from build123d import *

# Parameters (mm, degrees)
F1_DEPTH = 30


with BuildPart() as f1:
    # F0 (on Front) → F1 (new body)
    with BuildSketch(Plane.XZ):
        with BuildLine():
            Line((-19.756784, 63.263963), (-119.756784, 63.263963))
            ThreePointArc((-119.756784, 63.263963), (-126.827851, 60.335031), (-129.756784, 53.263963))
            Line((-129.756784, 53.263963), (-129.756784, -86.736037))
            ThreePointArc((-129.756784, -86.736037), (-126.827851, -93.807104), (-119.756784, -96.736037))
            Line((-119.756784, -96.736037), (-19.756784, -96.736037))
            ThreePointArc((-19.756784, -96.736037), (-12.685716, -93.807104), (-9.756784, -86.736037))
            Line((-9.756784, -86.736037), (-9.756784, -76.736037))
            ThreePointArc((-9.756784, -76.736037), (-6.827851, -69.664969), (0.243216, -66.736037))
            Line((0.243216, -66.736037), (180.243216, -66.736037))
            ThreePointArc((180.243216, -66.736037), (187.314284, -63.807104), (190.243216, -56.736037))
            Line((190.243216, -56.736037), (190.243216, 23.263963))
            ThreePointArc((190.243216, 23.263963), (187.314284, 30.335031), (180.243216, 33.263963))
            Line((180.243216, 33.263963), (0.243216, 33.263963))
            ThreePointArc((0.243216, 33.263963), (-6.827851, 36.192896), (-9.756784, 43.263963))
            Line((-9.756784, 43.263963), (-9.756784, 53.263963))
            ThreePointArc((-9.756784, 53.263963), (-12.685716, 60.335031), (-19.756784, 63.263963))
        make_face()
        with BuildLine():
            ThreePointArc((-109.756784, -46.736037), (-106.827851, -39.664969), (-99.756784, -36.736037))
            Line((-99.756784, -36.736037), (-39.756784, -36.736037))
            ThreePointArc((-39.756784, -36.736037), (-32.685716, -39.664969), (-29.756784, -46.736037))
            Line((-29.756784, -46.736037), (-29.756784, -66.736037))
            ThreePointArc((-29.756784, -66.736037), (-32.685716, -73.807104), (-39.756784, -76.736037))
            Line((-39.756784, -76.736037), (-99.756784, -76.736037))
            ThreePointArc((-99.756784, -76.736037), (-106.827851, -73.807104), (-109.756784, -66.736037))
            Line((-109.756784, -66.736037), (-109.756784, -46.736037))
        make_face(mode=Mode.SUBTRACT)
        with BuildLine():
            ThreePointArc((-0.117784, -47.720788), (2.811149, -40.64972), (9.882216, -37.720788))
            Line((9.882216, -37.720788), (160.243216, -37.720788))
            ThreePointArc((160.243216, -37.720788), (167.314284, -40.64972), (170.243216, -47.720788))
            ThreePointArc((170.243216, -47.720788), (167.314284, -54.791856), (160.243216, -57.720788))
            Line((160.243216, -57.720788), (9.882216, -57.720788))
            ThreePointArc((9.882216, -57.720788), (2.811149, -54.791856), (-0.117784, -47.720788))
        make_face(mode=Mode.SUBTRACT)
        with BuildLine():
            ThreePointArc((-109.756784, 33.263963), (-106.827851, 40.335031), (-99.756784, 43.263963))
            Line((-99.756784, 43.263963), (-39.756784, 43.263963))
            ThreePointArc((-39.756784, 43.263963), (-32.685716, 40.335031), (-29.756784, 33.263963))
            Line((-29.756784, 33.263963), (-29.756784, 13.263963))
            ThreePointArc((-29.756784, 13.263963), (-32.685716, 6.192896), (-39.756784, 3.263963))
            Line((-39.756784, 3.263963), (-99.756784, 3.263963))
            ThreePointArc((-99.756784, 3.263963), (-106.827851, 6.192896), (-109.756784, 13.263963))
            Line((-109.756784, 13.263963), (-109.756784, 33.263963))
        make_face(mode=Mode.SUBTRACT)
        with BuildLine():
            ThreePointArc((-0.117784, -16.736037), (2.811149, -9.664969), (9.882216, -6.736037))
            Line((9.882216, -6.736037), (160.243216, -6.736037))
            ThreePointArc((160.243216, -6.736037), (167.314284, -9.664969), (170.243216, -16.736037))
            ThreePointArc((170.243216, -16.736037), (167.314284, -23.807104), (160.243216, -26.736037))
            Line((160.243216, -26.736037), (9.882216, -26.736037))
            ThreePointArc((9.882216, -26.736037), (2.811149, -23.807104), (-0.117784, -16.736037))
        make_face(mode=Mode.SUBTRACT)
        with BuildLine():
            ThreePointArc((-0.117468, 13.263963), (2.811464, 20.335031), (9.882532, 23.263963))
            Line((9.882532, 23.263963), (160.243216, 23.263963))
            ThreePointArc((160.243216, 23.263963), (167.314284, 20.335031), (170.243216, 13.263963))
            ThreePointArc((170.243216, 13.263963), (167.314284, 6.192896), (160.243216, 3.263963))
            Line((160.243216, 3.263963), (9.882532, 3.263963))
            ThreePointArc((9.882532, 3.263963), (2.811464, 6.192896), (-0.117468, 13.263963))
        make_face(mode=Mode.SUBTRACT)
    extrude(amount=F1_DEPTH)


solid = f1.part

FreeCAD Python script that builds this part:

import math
import FreeCAD as App
import Part
import Sketcher

V = App.Vector

doc = App.newDocument("Part")
params = doc.addObject("Spreadsheet::Sheet", "Params")
for row, (alias, value) in enumerate([
    ("sketch1_radius", "10.000001 mm"),
    ("sketch1_width", "100 mm"),
    ("sketch1_width2", "180 mm"),
    ("sketch1_width3", "60 mm"),
    ("sketch1_height", "140 mm"),
    ("pad1_length", "30 mm"),
], start=1):
    params.set(f"A{row}", alias)
    params.set(f"B{row}", "=" + value)
    params.setAlias(f"B{row}", alias)

body = doc.addObject("PartDesign::Body", "Body")

sketch1 = doc.addObject("Sketcher::SketchObject", "Sketch")
body.addObject(sketch1)
sketch1.AttachmentSupport = (doc.XZ_Plane, [""])
sketch1.MapMode = "FlatFace"
sketch1.addGeometry([
    Part.LineSegment(V(-19.756784, 63.263963, 0), V(-119.756784, 63.263963, 0)),
    Part.ArcOfCircle(Part.Circle(V(-119.756783, 53.263962, 0), V(0, 0, 1), 10.000001), math.radians(90.000006), math.radians(179.999994)),
    Part.LineSegment(V(-129.756784, 53.263963, 0), V(-129.756784, -86.736037, 0)),
    Part.ArcOfCircle(Part.Circle(V(-119.756781, -86.736034, 0), V(0, 0, 1), 10.000003), math.radians(-179.999984), math.radians(-90.000016)),
    Part.LineSegment(V(-119.756784, -96.736037, 0), V(-19.756784, -96.736037, 0)),
    Part.ArcOfCircle(Part.Circle(V(-19.756785, -86.736036, 0), V(0, 0, 1), 10.000001), math.radians(-89.999994), math.radians(-0.000006)),
    Part.LineSegment(V(-9.756784, -86.736037, 0), V(-9.756784, -76.736037, 0)),
    Part.ArcOfCircle(Part.Circle(V(0.243217, -76.736038, 0), V(0, 0, 1), 10.000001), math.radians(90.000006), math.radians(179.999994)),
    Part.LineSegment(V(0.243216, -66.736037, 0), V(180.243216, -66.736037, 0)),
    Part.ArcOfCircle(Part.Circle(V(180.243215, -56.736036, 0), V(0, 0, 1), 10.000001), math.radians(-89.999994), math.radians(-0.000006)),
    Part.LineSegment(V(190.243216, -56.736037, 0), V(190.243216, 23.263963, 0)),
    Part.ArcOfCircle(Part.Circle(V(180.243217, 23.263964, 0), V(0, 0, 1), 9.999999), math.radians(-0.000004), math.radians(90.000004)),
    Part.LineSegment(V(180.243216, 33.263963, 0), V(0.243216, 33.263963, 0)),
    Part.ArcOfCircle(Part.Circle(V(0.243219, 43.263966, 0), V(0, 0, 1), 10.000003), math.radians(-179.999984), math.radians(-90.000016)),
    Part.LineSegment(V(-9.756784, 43.263963, 0), V(-9.756784, 53.263963, 0)),
    Part.ArcOfCircle(Part.Circle(V(-19.756783, 53.263964, 0), V(0, 0, 1), 9.999999), math.radians(-0.000004), math.radians(90.000004)),
    Part.LineSegment(V(-109.756784, -66.736037, 0), V(-109.756784, -46.736037, 0)),
    Part.ArcOfCircle(Part.Circle(V(-99.756783, -46.736038, 0), V(0, 0, 1), 10.000001), math.radians(90.000006), math.radians(179.999994)),
    Part.LineSegment(V(-99.756784, -36.736037, 0), V(-39.756784, -36.736037, 0)),
    Part.ArcOfCircle(Part.Circle(V(-39.756783, -46.736036, 0), V(0, 0, 1), 9.999999), math.radians(-0.000004), math.radians(90.000004)),
    Part.LineSegment(V(-29.756784, -46.736037, 0), V(-29.756784, -66.736037, 0)),
    Part.ArcOfCircle(Part.Circle(V(-39.756785, -66.736036, 0), V(0, 0, 1), 10.000001), math.radians(-89.999994), math.radians(-0.000006)),
    Part.LineSegment(V(-39.756784, -76.736037, 0), V(-99.756784, -76.736037, 0)),
    Part.ArcOfCircle(Part.Circle(V(-99.756781, -66.736034, 0), V(0, 0, 1), 10.000003), math.radians(-179.999984), math.radians(-90.000016)),
    Part.ArcOfCircle(Part.Circle(V(9.882217, -47.720787, 0), V(0, 0, 1), 10.000001), math.radians(-179.999994), math.radians(-90.000006)),
    Part.ArcOfCircle(Part.Circle(V(9.882217, -47.720789, 0), V(0, 0, 1), 10.000001), math.radians(90.000006), math.radians(179.999994)),
    Part.LineSegment(V(9.882216, -37.720788, 0), V(160.243216, -37.720788, 0)),
    Part.ArcOfCircle(Part.Circle(V(160.243217, -47.720787, 0), V(0, 0, 1), 9.999999), math.radians(-0.000004), math.radians(90.000004)),
    Part.ArcOfCircle(Part.Circle(V(160.243217, -47.720789, 0), V(0, 0, 1), 9.999999), math.radians(-90.000004), math.radians(0.000004)),
    Part.LineSegment(V(160.243216, -57.720788, 0), V(9.882216, -57.720788, 0)),
    Part.ArcOfCircle(Part.Circle(V(9.882219, -16.736034, 0), V(0, 0, 1), 10.000003), math.radians(-179.999984), math.radians(-90.000016)),
    Part.ArcOfCircle(Part.Circle(V(9.882217, -16.736038, 0), V(0, 0, 1), 10.000001), math.radians(90.000006), math.radians(179.999994)),
    Part.LineSegment(V(9.882216, -6.736037, 0), V(160.243216, -6.736037, 0)),
    Part.ArcOfCircle(Part.Circle(V(160.243217, -16.736036, 0), V(0, 0, 1), 9.999999), math.radians(-0.000004), math.radians(90.000004)),
    Part.ArcOfCircle(Part.Circle(V(160.243215, -16.736036, 0), V(0, 0, 1), 10.000001), math.radians(-89.999994), math.radians(-0.000006)),
    Part.LineSegment(V(160.243216, -26.736037, 0), V(9.882216, -26.736037, 0)),
    Part.LineSegment(V(-109.756784, 13.263963, 0), V(-109.756784, 33.263963, 0)),
    Part.ArcOfCircle(Part.Circle(V(-99.756783, 33.263962, 0), V(0, 0, 1), 10.000001), math.radians(90.000006), math.radians(179.999994)),
    Part.LineSegment(V(-99.756784, 43.263963, 0), V(-39.756784, 43.263963, 0)),
    Part.ArcOfCircle(Part.Circle(V(-39.756783, 33.263964, 0), V(0, 0, 1), 9.999999), math.radians(-0.000004), math.radians(90.000004)),
    Part.LineSegment(V(-29.756784, 33.263963, 0), V(-29.756784, 13.263963, 0)),
    Part.ArcOfCircle(Part.Circle(V(-39.756785, 13.263964, 0), V(0, 0, 1), 10.000001), math.radians(-89.999994), math.radians(-0.000006)),
    Part.LineSegment(V(-39.756784, 3.263963, 0), V(-99.756784, 3.263963, 0)),
    Part.ArcOfCircle(Part.Circle(V(-99.756781, 13.263966, 0), V(0, 0, 1), 10.000003), math.radians(-179.999984), math.radians(-90.000016)),
    Part.ArcOfCircle(Part.Circle(V(9.882533, 13.263964, 0), V(0, 0, 1), 10.000001), math.radians(-179.999994), math.radians(-90.000006)),
    Part.ArcOfCircle(Part.Circle(V(9.882531, 13.263964, 0), V(0, 0, 1), 9.999999), math.radians(89.999996), math.radians(180.000004)),
    Part.LineSegment(V(9.882532, 23.263963, 0), V(160.243216, 23.263963, 0)),
    Part.ArcOfCircle(Part.Circle(V(160.243217, 13.263964, 0), V(0, 0, 1), 9.999999), math.radians(-0.000004), math.radians(90.000004)),
    Part.ArcOfCircle(Part.Circle(V(160.243215, 13.263964, 0), V(0, 0, 1), 10.000001), math.radians(-89.999994), math.radians(-0.000006)),
    Part.LineSegment(V(160.243216, 3.263963, 0), V(9.882532, 3.263963, 0)),
], False)
sketch1.addConstraint([
    Sketcher.Constraint("Tangent", 0, 2, 1, 1),
    Sketcher.Constraint("Tangent", 1, 2, 2, 1),
    Sketcher.Constraint("Tangent", 2, 2, 3, 1),
    Sketcher.Constraint("Tangent", 3, 2, 4, 1),
    Sketcher.Constraint("Tangent", 4, 2, 5, 1),
    Sketcher.Constraint("Tangent", 5, 2, 6, 1),
    Sketcher.Constraint("Tangent", 6, 2, 7, 2),
    Sketcher.Constraint("Tangent", 7, 1, 8, 1),
    Sketcher.Constraint("Tangent", 8, 2, 9, 1),
    Sketcher.Constraint("Tangent", 9, 2, 10, 1),
    Sketcher.Constraint("Tangent", 10, 2, 11, 1),
    Sketcher.Constraint("Tangent", 11, 2, 12, 1),
    Sketcher.Constraint("Tangent", 12, 2, 13, 2),
    Sketcher.Constraint("Tangent", 13, 1, 14, 1),
    Sketcher.Constraint("Tangent", 14, 2, 15, 1),
    Sketcher.Constraint("Tangent", 15, 2, 0, 1),
    Sketcher.Constraint("Tangent", 16, 2, 17, 2),
    Sketcher.Constraint("Tangent", 17, 1, 18, 1),
    Sketcher.Constraint("Tangent", 18, 2, 19, 2),
    Sketcher.Constraint("Tangent", 19, 1, 20, 1),
    Sketcher.Constraint("Tangent", 20, 2, 21, 2),
    Sketcher.Constraint("Tangent", 21, 1, 22, 1),
    Sketcher.Constraint("Tangent", 22, 2, 23, 2),
    Sketcher.Constraint("Tangent", 23, 1, 16, 1),
    Sketcher.Constraint("Tangent", 24, 1, 25, 2),
    Sketcher.Constraint("Tangent", 25, 1, 26, 1),
    Sketcher.Constraint("Tangent", 26, 2, 27, 2),
    Sketcher.Constraint("Tangent", 27, 1, 28, 2),
    Sketcher.Constraint("Tangent", 28, 1, 29, 1),
    Sketcher.Constraint("Tangent", 29, 2, 24, 2),
    Sketcher.Constraint("Tangent", 30, 1, 31, 2),
    Sketcher.Constraint("Tangent", 31, 1, 32, 1),
    Sketcher.Constraint("Tangent", 32, 2, 33, 2),
    Sketcher.Constraint("Tangent", 33, 1, 34, 2),
    Sketcher.Constraint("Tangent", 34, 1, 35, 1),
    Sketcher.Constraint("Tangent", 35, 2, 30, 2),
    Sketcher.Constraint("Tangent", 36, 2, 37, 2),
    Sketcher.Constraint("Tangent", 37, 1, 38, 1),
    Sketcher.Constraint("Tangent", 38, 2, 39, 2),
    Sketcher.Constraint("Tangent", 39, 1, 40, 1),
    Sketcher.Constraint("Tangent", 40, 2, 41, 2),
    Sketcher.Constraint("Tangent", 41, 1, 42, 1),
    Sketcher.Constraint("Tangent", 42, 2, 43, 2),
    Sketcher.Constraint("Tangent", 43, 1, 36, 1),
    Sketcher.Constraint("Tangent", 44, 1, 45, 2),
    Sketcher.Constraint("Tangent", 45, 1, 46, 1),
    Sketcher.Constraint("Tangent", 46, 2, 47, 2),
    Sketcher.Constraint("Tangent", 47, 1, 48, 2),
    Sketcher.Constraint("Tangent", 48, 1, 49, 1),
    Sketcher.Constraint("Tangent", 49, 2, 44, 2),
    Sketcher.Constraint("Horizontal", 0),
    Sketcher.Constraint("Vertical", 2),
    Sketcher.Constraint("Horizontal", 4),
    Sketcher.Constraint("Vertical", 6),
    Sketcher.Constraint("Horizontal", 8),
    Sketcher.Constraint("Vertical", 10),
    Sketcher.Constraint("Horizontal", 12),
    Sketcher.Constraint("Vertical", 14),
    Sketcher.Constraint("Vertical", 16),
    Sketcher.Constraint("Horizontal", 18),
    Sketcher.Constraint("Vertical", 20),
    Sketcher.Constraint("Horizontal", 22),
    Sketcher.Constraint("Horizontal", 26),
    Sketcher.Constraint("Horizontal", 29),
    Sketcher.Constraint("Horizontal", 32),
    Sketcher.Constraint("Horizontal", 35),
    Sketcher.Constraint("Vertical", 36),
    Sketcher.Constraint("Horizontal", 38),
    Sketcher.Constraint("Vertical", 40),
    Sketcher.Constraint("Horizontal", 42),
    Sketcher.Constraint("Horizontal", 46),
    Sketcher.Constraint("Horizontal", 49),
    Sketcher.Constraint("Equal", 1, 3),
    Sketcher.Constraint("Equal", 3, 5),
    Sketcher.Constraint("Equal", 5, 7),
    Sketcher.Constraint("Equal", 7, 9),
    Sketcher.Constraint("Equal", 9, 11),
    Sketcher.Constraint("Equal", 9, 13),
    Sketcher.Constraint("Equal", 11, 15),
    Sketcher.Constraint("Equal", 15, 17),
    Sketcher.Constraint("Equal", 17, 19),
    Sketcher.Constraint("Equal", 19, 21),
    Sketcher.Constraint("Equal", 21, 23),
    Sketcher.Constraint("Equal", 23, 24),
    Sketcher.Constraint("Equal", 24, 25),
    Sketcher.Constraint("Equal", 25, 27),
    Sketcher.Constraint("Equal", 25, 30),
    Sketcher.Constraint("Equal", 30, 31),
    Sketcher.Constraint("Equal", 31, 33),
    Sketcher.Constraint("Equal", 34, 37),
    Sketcher.Constraint("Equal", 37, 39),
    Sketcher.Constraint("Equal", 39, 41),
    Sketcher.Constraint("Equal", 41, 43),
    Sketcher.Constraint("Equal", 43, 44),
    Sketcher.Constraint("Equal", 44, 45),
    Sketcher.Constraint("Equal", 45, 47),
    Sketcher.Constraint("Horizontal", 43, 3, 44, 3),
    Sketcher.Constraint("Horizontal", 21, 3, 7, 1),
    Sketcher.Constraint("Horizontal", 39, 3, 11, 2),
    Sketcher.Constraint("Horizontal", 28, 3, 24, 1),
    Sketcher.Constraint("Horizontal", 24, 1, 27, 1),
    Sketcher.Constraint("Horizontal", 34, 3, 30, 1),
    Sketcher.Constraint("Horizontal", 30, 1, 33, 1),
    Sketcher.Constraint("Horizontal", 43, 1, 44, 1),
    Sketcher.Constraint("Horizontal", 10, 2, 45, 1),
    Sketcher.Constraint("Horizontal", 44, 1, 47, 1),
    Sketcher.Constraint("Vertical", 7, 3, 13, 3),
    Sketcher.Constraint("Vertical", 25, 3, 30, 3),
    Sketcher.Constraint("Vertical", 28, 3, 33, 3),
    Sketcher.Constraint("Vertical", 23, 3, 37, 3),
    Sketcher.Constraint("Vertical", 21, 3, 39, 3),
    Sketcher.Constraint("Vertical", 34, 3, 47, 3),
    Sketcher.Constraint("Equal", 6, 14),
    Sketcher.Constraint("Equal", 20, 36),
    Sketcher.Constraint("Radius", 1, 10.000001),
    Sketcher.Constraint("DistanceX", 0, 2, 0, 1, 100.0),
    Sketcher.Constraint("DistanceX", 8, 1, 8, 2, 180.0),
    Sketcher.Constraint("DistanceX", 18, 1, 18, 2, 60.0),
    Sketcher.Constraint("DistanceY", 2, 2, 2, 1, 140.0),
    Sketcher.Constraint("DistanceY", 6, 1, 6, 2, 10.0),
    Sketcher.Constraint("DistanceX", 26, 1, 26, 2, 150.361),
    Sketcher.Constraint("DistanceX", 46, 1, 46, 2, 150.360684),
    Sketcher.Constraint("DistanceY", -1, 1, 1, 3, 53.263962),
    Sketcher.Constraint("DistanceX", 3, 3, -1, 1, 119.756781),
    Sketcher.Constraint("DistanceX", 23, 3, -1, 1, 99.756781),
    Sketcher.Constraint("DistanceY", 25, 3, -1, 1, 47.720789),
    Sketcher.Constraint("DistanceX", -1, 1, 30, 3, 9.882219),
    Sketcher.Constraint("DistanceY", 31, 3, -1, 1, 16.736038),
])
sketch1.setExpression("Constraints[114]", "Params.sketch1_radius")
sketch1.setExpression("Constraints[115]", "Params.sketch1_width")
sketch1.setExpression("Constraints[116]", "Params.sketch1_width2")
sketch1.setExpression("Constraints[117]", "Params.sketch1_width3")
sketch1.setExpression("Constraints[118]", "Params.sketch1_height")
pad1 = doc.addObject("PartDesign::Pad", "Pad")
body.addObject(pad1)
pad1.Profile = sketch1
pad1.setExpression("Length", "Params.pad1_length")

doc.recompute()
